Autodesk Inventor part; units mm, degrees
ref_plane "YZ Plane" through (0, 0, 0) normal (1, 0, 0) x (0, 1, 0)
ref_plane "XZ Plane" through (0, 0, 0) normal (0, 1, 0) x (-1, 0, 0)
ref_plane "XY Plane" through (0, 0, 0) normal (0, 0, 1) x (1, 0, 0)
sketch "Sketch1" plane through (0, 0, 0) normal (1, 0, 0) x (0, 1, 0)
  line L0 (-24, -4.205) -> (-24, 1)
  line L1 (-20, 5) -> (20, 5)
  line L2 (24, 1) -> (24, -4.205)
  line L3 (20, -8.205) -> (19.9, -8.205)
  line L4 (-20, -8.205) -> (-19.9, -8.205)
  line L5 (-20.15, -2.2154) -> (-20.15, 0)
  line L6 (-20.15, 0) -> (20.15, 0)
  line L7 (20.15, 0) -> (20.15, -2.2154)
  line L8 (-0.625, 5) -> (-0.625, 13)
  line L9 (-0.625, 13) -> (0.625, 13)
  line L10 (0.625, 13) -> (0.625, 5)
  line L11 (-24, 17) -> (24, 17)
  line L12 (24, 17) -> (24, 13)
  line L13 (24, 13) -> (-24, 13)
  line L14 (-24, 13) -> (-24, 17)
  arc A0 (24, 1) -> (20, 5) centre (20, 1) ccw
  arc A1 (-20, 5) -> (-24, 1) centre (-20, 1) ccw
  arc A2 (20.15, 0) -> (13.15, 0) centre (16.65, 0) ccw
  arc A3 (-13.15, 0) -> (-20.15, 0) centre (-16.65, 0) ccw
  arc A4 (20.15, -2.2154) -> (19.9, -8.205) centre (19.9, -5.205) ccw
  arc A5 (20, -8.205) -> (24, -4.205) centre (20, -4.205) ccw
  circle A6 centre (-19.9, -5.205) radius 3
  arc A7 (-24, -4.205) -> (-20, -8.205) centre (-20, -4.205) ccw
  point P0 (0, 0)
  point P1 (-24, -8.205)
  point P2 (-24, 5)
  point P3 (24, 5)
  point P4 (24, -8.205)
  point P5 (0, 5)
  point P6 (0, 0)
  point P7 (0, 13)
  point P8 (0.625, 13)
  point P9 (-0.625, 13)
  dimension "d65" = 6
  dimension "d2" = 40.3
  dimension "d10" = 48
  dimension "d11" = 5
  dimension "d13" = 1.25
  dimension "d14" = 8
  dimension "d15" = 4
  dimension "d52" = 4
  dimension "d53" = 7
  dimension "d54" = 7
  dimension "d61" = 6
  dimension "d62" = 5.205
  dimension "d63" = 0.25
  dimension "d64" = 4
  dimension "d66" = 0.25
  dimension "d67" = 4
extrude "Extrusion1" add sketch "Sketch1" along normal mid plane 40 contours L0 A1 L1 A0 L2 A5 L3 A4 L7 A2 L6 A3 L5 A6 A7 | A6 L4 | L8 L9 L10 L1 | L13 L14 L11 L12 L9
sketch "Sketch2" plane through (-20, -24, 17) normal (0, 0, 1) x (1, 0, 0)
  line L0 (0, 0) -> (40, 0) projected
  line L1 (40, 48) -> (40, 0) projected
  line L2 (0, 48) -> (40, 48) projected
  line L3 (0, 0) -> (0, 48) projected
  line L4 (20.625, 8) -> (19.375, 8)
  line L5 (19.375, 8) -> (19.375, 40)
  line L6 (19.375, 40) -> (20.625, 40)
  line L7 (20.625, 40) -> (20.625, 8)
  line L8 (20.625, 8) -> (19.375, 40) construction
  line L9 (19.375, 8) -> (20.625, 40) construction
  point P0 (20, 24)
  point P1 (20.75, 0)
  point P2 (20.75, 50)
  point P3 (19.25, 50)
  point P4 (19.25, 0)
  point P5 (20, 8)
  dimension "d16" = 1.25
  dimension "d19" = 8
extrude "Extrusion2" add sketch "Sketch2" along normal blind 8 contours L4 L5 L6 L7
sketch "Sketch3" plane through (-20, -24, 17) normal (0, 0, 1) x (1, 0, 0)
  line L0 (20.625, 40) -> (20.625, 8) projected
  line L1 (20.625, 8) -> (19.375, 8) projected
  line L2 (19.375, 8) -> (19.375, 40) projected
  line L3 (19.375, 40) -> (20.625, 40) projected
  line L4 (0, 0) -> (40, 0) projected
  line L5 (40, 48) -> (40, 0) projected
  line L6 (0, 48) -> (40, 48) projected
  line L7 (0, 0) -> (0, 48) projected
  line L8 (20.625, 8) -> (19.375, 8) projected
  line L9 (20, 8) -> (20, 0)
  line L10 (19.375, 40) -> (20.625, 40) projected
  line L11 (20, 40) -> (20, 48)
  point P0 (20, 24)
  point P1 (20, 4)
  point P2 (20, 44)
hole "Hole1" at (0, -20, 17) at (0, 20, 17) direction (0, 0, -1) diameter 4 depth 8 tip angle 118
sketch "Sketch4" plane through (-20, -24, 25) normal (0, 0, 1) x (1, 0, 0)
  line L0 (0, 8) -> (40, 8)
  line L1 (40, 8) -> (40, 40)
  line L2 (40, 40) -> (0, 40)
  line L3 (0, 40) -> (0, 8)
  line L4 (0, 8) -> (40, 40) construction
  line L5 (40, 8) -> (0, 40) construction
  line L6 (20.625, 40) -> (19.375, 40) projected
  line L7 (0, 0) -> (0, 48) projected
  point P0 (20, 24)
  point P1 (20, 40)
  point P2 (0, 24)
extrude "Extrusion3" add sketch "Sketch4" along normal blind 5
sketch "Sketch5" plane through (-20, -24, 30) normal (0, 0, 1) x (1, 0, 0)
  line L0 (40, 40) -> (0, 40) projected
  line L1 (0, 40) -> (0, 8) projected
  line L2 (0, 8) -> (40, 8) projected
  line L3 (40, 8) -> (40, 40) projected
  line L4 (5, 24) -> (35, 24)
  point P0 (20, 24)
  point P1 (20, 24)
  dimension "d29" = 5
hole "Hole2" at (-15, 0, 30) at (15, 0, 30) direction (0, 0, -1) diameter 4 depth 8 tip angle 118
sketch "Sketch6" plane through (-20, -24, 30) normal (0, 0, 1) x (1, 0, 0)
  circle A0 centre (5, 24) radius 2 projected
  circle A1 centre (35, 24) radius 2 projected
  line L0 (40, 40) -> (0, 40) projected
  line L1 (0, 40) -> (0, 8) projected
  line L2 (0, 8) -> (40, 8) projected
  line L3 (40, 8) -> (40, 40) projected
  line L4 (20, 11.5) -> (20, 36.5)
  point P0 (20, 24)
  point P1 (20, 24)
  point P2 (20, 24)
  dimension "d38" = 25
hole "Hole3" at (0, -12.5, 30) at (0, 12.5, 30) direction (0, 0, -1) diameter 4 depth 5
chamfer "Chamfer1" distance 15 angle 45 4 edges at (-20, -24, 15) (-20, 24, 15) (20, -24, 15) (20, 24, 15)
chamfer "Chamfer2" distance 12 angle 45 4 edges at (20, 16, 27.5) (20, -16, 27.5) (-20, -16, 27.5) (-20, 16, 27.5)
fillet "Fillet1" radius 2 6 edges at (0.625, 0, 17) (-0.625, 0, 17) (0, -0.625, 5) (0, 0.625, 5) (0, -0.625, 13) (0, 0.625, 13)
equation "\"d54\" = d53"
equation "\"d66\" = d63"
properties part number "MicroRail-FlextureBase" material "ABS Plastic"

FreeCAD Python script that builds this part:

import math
import FreeCAD as App
import Part
import Sketcher
from FreeCAD import Vector
Q = App.Units.Quantity


def edges_at(feature, points):
    """Names of the edges that pass closest to the given points."""
    edges = feature.Shape.Edges
    near = lambda p: min(range(len(edges)), key=lambda i: edges[i].distToShape(Part.Vertex(*p))[0])
    return sorted({f"Edge{near(p) + 1}" for p in points})

doc = App.newDocument("Part")
body = doc.addObject("PartDesign::Body", "Body")

# Sketch on YZ plane
sketch1 = body.newObject("Sketcher::SketchObject", "Sketch")
sketch1.AttachmentSupport = (doc.getObject("YZ_Plane"), [""])
sketch1.MapMode = "FlatFace"
sketch1.addGeometry(Part.LineSegment(Vector(-24, 1, 0), Vector(-24, -4.21, 0)), False)
sketch1.addGeometry(Part.ArcOfCircle(Part.Circle(Vector(-20, -4.21, 0), Vector(0, 0, 1), 4), math.radians(180), math.radians(270)), False)
sketch1.addGeometry(Part.LineSegment(Vector(-20, -8.21, 0), Vector(-19.9, -8.21, 0)), False)
sketch1.addGeometry(Part.ArcOfCircle(Part.Circle(Vector(-19.9, -5.21, 0), Vector(0, 0, 1), 3), math.radians(-90), math.radians(95)), False)
sketch1.addGeometry(Part.LineSegment(Vector(-20.15, -2.22, 0), Vector(-20.15, 0, 0)), False)
sketch1.addGeometry(Part.ArcOfCircle(Part.Circle(Vector(-16.65, 0, 0), Vector(0, 0, 1), 3.5), math.radians(0), math.radians(180)), False)
sketch1.addGeometry(Part.LineSegment(Vector(-13.15, 0, 0), Vector(13.15, 0, 0)), False)
sketch1.addGeometry(Part.ArcOfCircle(Part.Circle(Vector(16.65, 0, 0), Vector(0, 0, 1), 3.5), math.radians(0), math.radians(180)), False)
sketch1.addGeometry(Part.LineSegment(Vector(20.15, 0, 0), Vector(20.15, -2.22, 0)), False)
sketch1.addGeometry(Part.ArcOfCircle(Part.Circle(Vector(19.9, -5.21, 0), Vector(0, 0, 1), 3), math.radians(85), math.radians(270)), False)
sketch1.addGeometry(Part.LineSegment(Vector(19.9, -8.21, 0), Vector(20, -8.21, 0)), False)
sketch1.addGeometry(Part.ArcOfCircle(Part.Circle(Vector(20, -4.21, 0), Vector(0, 0, 1), 4), math.radians(-90), math.radians(0)), False)
sketch1.addGeometry(Part.LineSegment(Vector(24, -4.21, 0), Vector(24, 1, 0)), False)
sketch1.addGeometry(Part.ArcOfCircle(Part.Circle(Vector(20, 1, 0), Vector(0, 0, 1), 4), math.radians(0), math.radians(90)), False)
sketch1.addGeometry(Part.LineSegment(Vector(20, 5, 0), Vector(0.62, 5, 0)), False)
sketch1.addGeometry(Part.LineSegment(Vector(0.62, 5, 0), Vector(0.62, 13, 0)), False)
sketch1.addGeometry(Part.LineSegment(Vector(0.62, 13, 0), Vector(24, 13, 0)), False)
sketch1.addGeometry(Part.LineSegment(Vector(24, 13, 0), Vector(24, 17, 0)), False)
sketch1.addGeometry(Part.LineSegment(Vector(24, 17, 0), Vector(-24, 17, 0)), False)
sketch1.addGeometry(Part.LineSegment(Vector(-24, 17, 0), Vector(-24, 13, 0)), False)
sketch1.addGeometry(Part.LineSegment(Vector(-24, 13, 0), Vector(-0.62, 13, 0)), False)
sketch1.addGeometry(Part.LineSegment(Vector(-0.62, 13, 0), Vector(-0.62, 5, 0)), False)
sketch1.addGeometry(Part.LineSegment(Vector(-0.62, 5, 0), Vector(-20, 5, 0)), False)
sketch1.addGeometry(Part.ArcOfCircle(Part.Circle(Vector(-20, 1, 0), Vector(0, 0, 1), 4), math.radians(90), math.radians(180)), False)
sketch1.addConstraint(Sketcher.Constraint("Tangent", 0, 2, 1, 1))
sketch1.addConstraint(Sketcher.Constraint("Tangent", 1, 2, 2, 1))
sketch1.addConstraint(Sketcher.Constraint("Tangent", 2, 2, 3, 1))
sketch1.addConstraint(Sketcher.Constraint("Coincident", 3, 2, 4, 1))
sketch1.addConstraint(Sketcher.Constraint("Tangent", 4, 2, 5, 2))
sketch1.addConstraint(Sketcher.Constraint("Coincident", 5, 1, 6, 1))
sketch1.addConstraint(Sketcher.Constraint("Coincident", 6, 2, 7, 2))
sketch1.addConstraint(Sketcher.Constraint("Tangent", 7, 1, 8, 1))
sketch1.addConstraint(Sketcher.Constraint("Coincident", 8, 2, 9, 1))
sketch1.addConstraint(Sketcher.Constraint("Tangent", 9, 2, 10, 1))
sketch1.addConstraint(Sketcher.Constraint("Tangent", 10, 2, 11, 1))
sketch1.addConstraint(Sketcher.Constraint("Tangent", 11, 2, 12, 1))
sketch1.addConstraint(Sketcher.Constraint("Tangent", 12, 2, 13, 1))
sketch1.addConstraint(Sketcher.Constraint("Tangent", 13, 2, 14, 1))
sketch1.addConstraint(Sketcher.Constraint("Coincident", 14, 2, 15, 1))
sketch1.addConstraint(Sketcher.Constraint("Coincident", 15, 2, 16, 1))
sketch1.addConstraint(Sketcher.Constraint("Coincident", 16, 2, 17, 1))
sketch1.addConstraint(Sketcher.Constraint("Coincident", 17, 2, 18, 1))
sketch1.addConstraint(Sketcher.Constraint("Coincident", 18, 2, 19, 1))
sketch1.addConstraint(Sketcher.Constraint("Coincident", 19, 2, 20, 1))
sketch1.addConstraint(Sketcher.Constraint("Coincident", 20, 2, 21, 1))
sketch1.addConstraint(Sketcher.Constraint("Coincident", 21, 2, 22, 1))
sketch1.addConstraint(Sketcher.Constraint("Tangent", 22, 2, 23, 1))
sketch1.addConstraint(Sketcher.Constraint("Tangent", 23, 2, 0, 1))
sketch1.addConstraint(Sketcher.Constraint("Vertical", 0))
sketch1.addConstraint(Sketcher.Constraint("Horizontal", 2))
sketch1.addConstraint(Sketcher.Constraint("Vertical", 4))
sketch1.addConstraint(Sketcher.Constraint("Horizontal", 6))
sketch1.addConstraint(Sketcher.Constraint("Vertical", 8))
sketch1.addConstraint(Sketcher.Constraint("Horizontal", 10))
sketch1.addConstraint(Sketcher.Constraint("Vertical", 12))
sketch1.addConstraint(Sketcher.Constraint("Horizontal", 14))
sketch1.addConstraint(Sketcher.Constraint("Vertical", 15))
sketch1.addConstraint(Sketcher.Constraint("Horizontal", 16))
sketch1.addConstraint(Sketcher.Constraint("Vertical", 17))
sketch1.addConstraint(Sketcher.Constraint("Horizontal", 18))
sketch1.addConstraint(Sketcher.Constraint("Vertical", 19))
sketch1.addConstraint(Sketcher.Constraint("Horizontal", 20))
sketch1.addConstraint(Sketcher.Constraint("Vertical", 21))
sketch1.addConstraint(Sketcher.Constraint("Horizontal", 22))
sketch1.addConstraint(Sketcher.Constraint("Equal", 5, 7))
sketch1.addConstraint(Sketcher.Constraint("Equal", 3, 9))
sketch1.addConstraint(Sketcher.Constraint("Equal", 1, 11))
sketch1.addConstraint(Sketcher.Constraint("Equal", 11, 13))
sketch1.addConstraint(Sketcher.Constraint("Equal", 13, 23))
sketch1.addConstraint(Sketcher.Constraint("Symmetric", 5, 3, 7, 3, -1, 1))
sketch1.addConstraint(Sketcher.Constraint("Symmetric", 3, 3, 9, 3, -2))
sketch1.addConstraint(Sketcher.Constraint("Symmetric", 13, 3, 23, 3, -2))
sketch1.addConstraint(Sketcher.Constraint("Symmetric", 16, 2, 19, 2, -2))
sketch1.addConstraint(Sketcher.Constraint("PointOnObject", 5, 3, -1))
sketch1.addConstraint(Sketcher.Constraint("PointOnObject", 5, 1, -1))
sketch1.addConstraint(Sketcher.Constraint("Vertical", 12, 2, 16, 2))
sketch1.addConstraint(Sketcher.Constraint("Equal", 16, 20))
sketch1.addConstraint(Sketcher.Constraint("Radius", 1, Q("4 mm")))
sketch1.addConstraint(Sketcher.Constraint("Radius", 3, Q("3 mm")))
sketch1.addConstraint(Sketcher.Constraint("Radius", 5, Q("3.5 mm")))
sketch1.addConstraint(Sketcher.Constraint("DistanceX", 18, 2, 18, 1, Q("48 mm")))
sketch1.addConstraint(Sketcher.Constraint("DistanceY", 15, 1, 15, 2, Q("8 mm")))
sketch1.addConstraint(Sketcher.Constraint("DistanceY", 17, 1, 17, 2, Q("4 mm")))
sketch1.addConstraint(Sketcher.Constraint("DistanceY", -1, 1, 13, 2, Q("5 mm")))
sketch1.addConstraint(Sketcher.Constraint("DistanceY", 0, 2, 0, 1, Q("5.205 mm")))
sketch1.addConstraint(Sketcher.Constraint("DistanceX", 3, 2, 3, 3, Q("0.25 mm")))
sketch1.addConstraint(Sketcher.Constraint("DistanceX", 20, 2, 15, 2, Q("1.25 mm")))
sketch1.addConstraint(Sketcher.Constraint("DistanceX", 2, 1, 2, 2, Q("0.1 mm")))
pad1 = body.newObject("PartDesign::Pad", "Pad")
pad1.Profile = sketch1
pad1.Length = 40
pad1.Midplane = True

# Sketch on XY plane
sketch2 = body.newObject("Sketcher::SketchObject", "Sketch001")
sketch2.AttachmentSupport = (doc.getObject("XY_Plane"), [""])
sketch2.MapMode = "FlatFace"
sketch2.AttachmentOffset = App.Placement(Vector(0, 0, 17), App.Rotation())
sketch2.addGeometry(Part.LineSegment(Vector(-0.6, -16, 0), Vector(0.6, -16, 0)), False)
sketch2.addGeometry(Part.LineSegment(Vector(0.6, -16, 0), Vector(0.6, 16, 0)), False)
sketch2.addGeometry(Part.LineSegment(Vector(0.6, 16, 0), Vector(-0.6, 16, 0)), False)
sketch2.addGeometry(Part.LineSegment(Vector(-0.6, 16, 0), Vector(-0.6, -16, 0)), False)
sketch2.addConstraint(Sketcher.Constraint("Coincident", 0, 2, 1, 1))
sketch2.addConstraint(Sketcher.Constraint("Coincident", 1, 2, 2, 1))
sketch2.addConstraint(Sketcher.Constraint("Coincident", 2, 2, 3, 1))
sketch2.addConstraint(Sketcher.Constraint("Coincident", 3, 2, 0, 1))
sketch2.addConstraint(Sketcher.Constraint("Horizontal", 0))
sketch2.addConstraint(Sketcher.Constraint("Vertical", 1))
sketch2.addConstraint(Sketcher.Constraint("Horizontal", 2))
sketch2.addConstraint(Sketcher.Constraint("Vertical", 3))
sketch2.addConstraint(Sketcher.Constraint("Symmetric", 0, 2, 2, 2, -1, 1))
sketch2.addConstraint(Sketcher.Constraint("DistanceX", 0, 1, 0, 2, Q("1.25 mm")))
sketch2.addConstraint(Sketcher.Constraint("DistanceY", 1, 1, 1, 2, Q("32 mm")))
pad2 = body.newObject("PartDesign::Pad", "Pad001")
pad2.Profile = sketch2
pad2.Length = 8

# Sketch on XY plane
sketch3 = body.newObject("Sketcher::SketchObject", "Sketch002")
sketch3.AttachmentSupport = (doc.getObject("XY_Plane"), [""])
sketch3.MapMode = "FlatFace"
sketch3.AttachmentOffset = App.Placement(Vector(0, 0, 17), App.Rotation())
sketch3.addGeometry(Part.Circle(Vector(0, -20, 0), Vector(0, 0, 1), 2), False)
sketch3.addGeometry(Part.Circle(Vector(0, 20, 0), Vector(0, 0, 1), 2), False)
sketch3.addConstraint(Sketcher.Constraint("Equal", 0, 1))
sketch3.addConstraint(Sketcher.Constraint("Symmetric", 0, 3, 1, 3, -1, 1))
sketch3.addConstraint(Sketcher.Constraint("PointOnObject", 0, 3, -2))
sketch3.addConstraint(Sketcher.Constraint("Diameter", 0, Q("4 mm")))
sketch3.addConstraint(Sketcher.Constraint("DistanceY", 0, 3, -1, 1, Q("20 mm")))
doc.recompute()
hole = body.newObject("PartDesign::Hole", "Hole")
hole.Profile = sketch3
hole.ThreadType = "None"
hole.Diameter = 4
hole.DepthType = "Dimension"
hole.Depth = 8
hole.DrillPoint = "Angled"
hole.DrillPointAngle = 118

# Sketch on XY plane
sketch4 = body.newObject("Sketcher::SketchObject", "Sketch003")
sketch4.AttachmentSupport = (doc.getObject("XY_Plane"), [""])
sketch4.MapMode = "FlatFace"
sketch4.AttachmentOffset = App.Placement(Vector(0, 0, 25), App.Rotation())
sketch4.addGeometry(Part.LineSegment(Vector(-20, 16, 0), Vector(-20, -16, 0)), False)
sketch4.addGeometry(Part.LineSegment(Vector(-20, -16, 0), Vector(20, -16, 0)), False)
sketch4.addGeometry(Part.LineSegment(Vector(20, -16, 0), Vector(20, 16, 0)), False)
sketch4.addGeometry(Part.LineSegment(Vector(20, 16, 0), Vector(-20, 16, 0)), False)
sketch4.addConstraint(Sketcher.Constraint("Coincident", 0, 2, 1, 1))
sketch4.addConstraint(Sketcher.Constraint("Coincident", 1, 2, 2, 1))
sketch4.addConstraint(Sketcher.Constraint("Coincident", 2, 2, 3, 1))
sketch4.addConstraint(Sketcher.Constraint("Coincident", 3, 2, 0, 1))
sketch4.addConstraint(Sketcher.Constraint("Vertical", 0))
sketch4.addConstraint(Sketcher.Constraint("Horizontal", 1))
sketch4.addConstraint(Sketcher.Constraint("Vertical", 2))
sketch4.addConstraint(Sketcher.Constraint("Horizontal", 3))
sketch4.addConstraint(Sketcher.Constraint("Symmetric", 0, 2, 2, 2, -1, 1))
sketch4.addConstraint(Sketcher.Constraint("DistanceX", 1, 1, 1, 2, Q("40 mm")))
sketch4.addConstraint(Sketcher.Constraint("DistanceY", 0, 2, 0, 1, Q("32 mm")))
pad3 = body.newObject("PartDesign::Pad", "Pad002")
pad3.Profile = sketch4
pad3.Length = 5

# Sketch on XY plane
sketch5 = body.newObject("Sketcher::SketchObject", "Sketch004")
sketch5.AttachmentSupport = (doc.getObject("XY_Plane"), [""])
sketch5.MapMode = "FlatFace"
sketch5.AttachmentOffset = App.Placement(Vector(0, 0, 30), App.Rotation())
sketch5.addGeometry(Part.Circle(Vector(-15, 0, 0), Vector(0, 0, 1), 2), False)
sketch5.addGeometry(Part.Circle(Vector(15, 0, 0), Vector(0, 0, 1), 2), False)
sketch5.addConstraint(Sketcher.Constraint("Equal", 0, 1))
sketch5.addConstraint(Sketcher.Constraint("Symmetric", 0, 3, 1, 3, -1, 1))
sketch5.addConstraint(Sketcher.Constraint("PointOnObject", 0, 3, -1))
sketch5.addConstraint(Sketcher.Constraint("Diameter", 0, Q("4 mm")))
sketch5.addConstraint(Sketcher.Constraint("DistanceX", 0, 3, -1, 1, Q("15 mm")))
doc.recompute()
hole2 = body.newObject("PartDesign::Hole", "Hole001")
hole2.Profile = sketch5
hole2.ThreadType = "None"
hole2.Diameter = 4
hole2.DepthType = "Dimension"
hole2.Depth = 8
hole2.DrillPoint = "Angled"
hole2.DrillPointAngle = 118

# Sketch on XY plane
sketch6 = body.newObject("Sketcher::SketchObject", "Sketch005")
sketch6.AttachmentSupport = (doc.getObject("XY_Plane"), [""])
sketch6.MapMode = "FlatFace"
sketch6.AttachmentOffset = App.Placement(Vector(0, 0, 30), App.Rotation())
sketch6.addGeometry(Part.Circle(Vector(0, -12.5, 0), Vector(0, 0, 1), 2), False)
sketch6.addGeometry(Part.Circle(Vector(0, 12.5, 0), Vector(0, 0, 1), 2), False)
sketch6.addConstraint(Sketcher.Constraint("Equal", 0, 1))
sketch6.addConstraint(Sketcher.Constraint("Symmetric", 0, 3, 1, 3, -1, 1))
sketch6.addConstraint(Sketcher.Constraint("PointOnObject", 0, 3, -2))
sketch6.addConstraint(Sketcher.Constraint("Diameter", 0, Q("4 mm")))
sketch6.addConstraint(Sketcher.Constraint("DistanceY", 0, 3, 1, 3, Q("25 mm")))
doc.recompute()
hole3 = body.newObject("PartDesign::Hole", "Hole002")
hole3.Profile = sketch6
hole3.ThreadType = "None"
hole3.Diameter = 4
hole3.DepthType = "Dimension"
hole3.Depth = 5
hole3.DrillPoint = "Flat"
doc.recompute()

chamfer = body.newObject("PartDesign::Chamfer", "Chamfer")
chamfer.Base = (hole3, edges_at(hole3, [
    (-20, -24, 15),
    (-20, 24, 15),
    (20, -24, 15),
    (20, 24, 15),
]))
chamfer.Size = 15
doc.recompute()

chamfer2 = body.newObject("PartDesign::Chamfer", "Chamfer001")
chamfer2.Base = (chamfer, edges_at(chamfer, [
    (20, 16, 27.5),
    (20, -16, 27.5),
    (-20, -16, 27.5),
    (-20, 16, 27.5),
]))
chamfer2.Size = 12
doc.recompute()

fillet = body.newObject("PartDesign::Fillet", "Fillet")
fillet.Base = (chamfer2, edges_at(chamfer2, [
    (0.625, 0, 17),
    (-0.625, 0, 17),
    (0, -0.625, 5),
    (0, 0.625, 5),
    (0, -0.625, 13),
    (0, 0.625, 13),
]))
fillet.Radius = 2

doc.recompute()
